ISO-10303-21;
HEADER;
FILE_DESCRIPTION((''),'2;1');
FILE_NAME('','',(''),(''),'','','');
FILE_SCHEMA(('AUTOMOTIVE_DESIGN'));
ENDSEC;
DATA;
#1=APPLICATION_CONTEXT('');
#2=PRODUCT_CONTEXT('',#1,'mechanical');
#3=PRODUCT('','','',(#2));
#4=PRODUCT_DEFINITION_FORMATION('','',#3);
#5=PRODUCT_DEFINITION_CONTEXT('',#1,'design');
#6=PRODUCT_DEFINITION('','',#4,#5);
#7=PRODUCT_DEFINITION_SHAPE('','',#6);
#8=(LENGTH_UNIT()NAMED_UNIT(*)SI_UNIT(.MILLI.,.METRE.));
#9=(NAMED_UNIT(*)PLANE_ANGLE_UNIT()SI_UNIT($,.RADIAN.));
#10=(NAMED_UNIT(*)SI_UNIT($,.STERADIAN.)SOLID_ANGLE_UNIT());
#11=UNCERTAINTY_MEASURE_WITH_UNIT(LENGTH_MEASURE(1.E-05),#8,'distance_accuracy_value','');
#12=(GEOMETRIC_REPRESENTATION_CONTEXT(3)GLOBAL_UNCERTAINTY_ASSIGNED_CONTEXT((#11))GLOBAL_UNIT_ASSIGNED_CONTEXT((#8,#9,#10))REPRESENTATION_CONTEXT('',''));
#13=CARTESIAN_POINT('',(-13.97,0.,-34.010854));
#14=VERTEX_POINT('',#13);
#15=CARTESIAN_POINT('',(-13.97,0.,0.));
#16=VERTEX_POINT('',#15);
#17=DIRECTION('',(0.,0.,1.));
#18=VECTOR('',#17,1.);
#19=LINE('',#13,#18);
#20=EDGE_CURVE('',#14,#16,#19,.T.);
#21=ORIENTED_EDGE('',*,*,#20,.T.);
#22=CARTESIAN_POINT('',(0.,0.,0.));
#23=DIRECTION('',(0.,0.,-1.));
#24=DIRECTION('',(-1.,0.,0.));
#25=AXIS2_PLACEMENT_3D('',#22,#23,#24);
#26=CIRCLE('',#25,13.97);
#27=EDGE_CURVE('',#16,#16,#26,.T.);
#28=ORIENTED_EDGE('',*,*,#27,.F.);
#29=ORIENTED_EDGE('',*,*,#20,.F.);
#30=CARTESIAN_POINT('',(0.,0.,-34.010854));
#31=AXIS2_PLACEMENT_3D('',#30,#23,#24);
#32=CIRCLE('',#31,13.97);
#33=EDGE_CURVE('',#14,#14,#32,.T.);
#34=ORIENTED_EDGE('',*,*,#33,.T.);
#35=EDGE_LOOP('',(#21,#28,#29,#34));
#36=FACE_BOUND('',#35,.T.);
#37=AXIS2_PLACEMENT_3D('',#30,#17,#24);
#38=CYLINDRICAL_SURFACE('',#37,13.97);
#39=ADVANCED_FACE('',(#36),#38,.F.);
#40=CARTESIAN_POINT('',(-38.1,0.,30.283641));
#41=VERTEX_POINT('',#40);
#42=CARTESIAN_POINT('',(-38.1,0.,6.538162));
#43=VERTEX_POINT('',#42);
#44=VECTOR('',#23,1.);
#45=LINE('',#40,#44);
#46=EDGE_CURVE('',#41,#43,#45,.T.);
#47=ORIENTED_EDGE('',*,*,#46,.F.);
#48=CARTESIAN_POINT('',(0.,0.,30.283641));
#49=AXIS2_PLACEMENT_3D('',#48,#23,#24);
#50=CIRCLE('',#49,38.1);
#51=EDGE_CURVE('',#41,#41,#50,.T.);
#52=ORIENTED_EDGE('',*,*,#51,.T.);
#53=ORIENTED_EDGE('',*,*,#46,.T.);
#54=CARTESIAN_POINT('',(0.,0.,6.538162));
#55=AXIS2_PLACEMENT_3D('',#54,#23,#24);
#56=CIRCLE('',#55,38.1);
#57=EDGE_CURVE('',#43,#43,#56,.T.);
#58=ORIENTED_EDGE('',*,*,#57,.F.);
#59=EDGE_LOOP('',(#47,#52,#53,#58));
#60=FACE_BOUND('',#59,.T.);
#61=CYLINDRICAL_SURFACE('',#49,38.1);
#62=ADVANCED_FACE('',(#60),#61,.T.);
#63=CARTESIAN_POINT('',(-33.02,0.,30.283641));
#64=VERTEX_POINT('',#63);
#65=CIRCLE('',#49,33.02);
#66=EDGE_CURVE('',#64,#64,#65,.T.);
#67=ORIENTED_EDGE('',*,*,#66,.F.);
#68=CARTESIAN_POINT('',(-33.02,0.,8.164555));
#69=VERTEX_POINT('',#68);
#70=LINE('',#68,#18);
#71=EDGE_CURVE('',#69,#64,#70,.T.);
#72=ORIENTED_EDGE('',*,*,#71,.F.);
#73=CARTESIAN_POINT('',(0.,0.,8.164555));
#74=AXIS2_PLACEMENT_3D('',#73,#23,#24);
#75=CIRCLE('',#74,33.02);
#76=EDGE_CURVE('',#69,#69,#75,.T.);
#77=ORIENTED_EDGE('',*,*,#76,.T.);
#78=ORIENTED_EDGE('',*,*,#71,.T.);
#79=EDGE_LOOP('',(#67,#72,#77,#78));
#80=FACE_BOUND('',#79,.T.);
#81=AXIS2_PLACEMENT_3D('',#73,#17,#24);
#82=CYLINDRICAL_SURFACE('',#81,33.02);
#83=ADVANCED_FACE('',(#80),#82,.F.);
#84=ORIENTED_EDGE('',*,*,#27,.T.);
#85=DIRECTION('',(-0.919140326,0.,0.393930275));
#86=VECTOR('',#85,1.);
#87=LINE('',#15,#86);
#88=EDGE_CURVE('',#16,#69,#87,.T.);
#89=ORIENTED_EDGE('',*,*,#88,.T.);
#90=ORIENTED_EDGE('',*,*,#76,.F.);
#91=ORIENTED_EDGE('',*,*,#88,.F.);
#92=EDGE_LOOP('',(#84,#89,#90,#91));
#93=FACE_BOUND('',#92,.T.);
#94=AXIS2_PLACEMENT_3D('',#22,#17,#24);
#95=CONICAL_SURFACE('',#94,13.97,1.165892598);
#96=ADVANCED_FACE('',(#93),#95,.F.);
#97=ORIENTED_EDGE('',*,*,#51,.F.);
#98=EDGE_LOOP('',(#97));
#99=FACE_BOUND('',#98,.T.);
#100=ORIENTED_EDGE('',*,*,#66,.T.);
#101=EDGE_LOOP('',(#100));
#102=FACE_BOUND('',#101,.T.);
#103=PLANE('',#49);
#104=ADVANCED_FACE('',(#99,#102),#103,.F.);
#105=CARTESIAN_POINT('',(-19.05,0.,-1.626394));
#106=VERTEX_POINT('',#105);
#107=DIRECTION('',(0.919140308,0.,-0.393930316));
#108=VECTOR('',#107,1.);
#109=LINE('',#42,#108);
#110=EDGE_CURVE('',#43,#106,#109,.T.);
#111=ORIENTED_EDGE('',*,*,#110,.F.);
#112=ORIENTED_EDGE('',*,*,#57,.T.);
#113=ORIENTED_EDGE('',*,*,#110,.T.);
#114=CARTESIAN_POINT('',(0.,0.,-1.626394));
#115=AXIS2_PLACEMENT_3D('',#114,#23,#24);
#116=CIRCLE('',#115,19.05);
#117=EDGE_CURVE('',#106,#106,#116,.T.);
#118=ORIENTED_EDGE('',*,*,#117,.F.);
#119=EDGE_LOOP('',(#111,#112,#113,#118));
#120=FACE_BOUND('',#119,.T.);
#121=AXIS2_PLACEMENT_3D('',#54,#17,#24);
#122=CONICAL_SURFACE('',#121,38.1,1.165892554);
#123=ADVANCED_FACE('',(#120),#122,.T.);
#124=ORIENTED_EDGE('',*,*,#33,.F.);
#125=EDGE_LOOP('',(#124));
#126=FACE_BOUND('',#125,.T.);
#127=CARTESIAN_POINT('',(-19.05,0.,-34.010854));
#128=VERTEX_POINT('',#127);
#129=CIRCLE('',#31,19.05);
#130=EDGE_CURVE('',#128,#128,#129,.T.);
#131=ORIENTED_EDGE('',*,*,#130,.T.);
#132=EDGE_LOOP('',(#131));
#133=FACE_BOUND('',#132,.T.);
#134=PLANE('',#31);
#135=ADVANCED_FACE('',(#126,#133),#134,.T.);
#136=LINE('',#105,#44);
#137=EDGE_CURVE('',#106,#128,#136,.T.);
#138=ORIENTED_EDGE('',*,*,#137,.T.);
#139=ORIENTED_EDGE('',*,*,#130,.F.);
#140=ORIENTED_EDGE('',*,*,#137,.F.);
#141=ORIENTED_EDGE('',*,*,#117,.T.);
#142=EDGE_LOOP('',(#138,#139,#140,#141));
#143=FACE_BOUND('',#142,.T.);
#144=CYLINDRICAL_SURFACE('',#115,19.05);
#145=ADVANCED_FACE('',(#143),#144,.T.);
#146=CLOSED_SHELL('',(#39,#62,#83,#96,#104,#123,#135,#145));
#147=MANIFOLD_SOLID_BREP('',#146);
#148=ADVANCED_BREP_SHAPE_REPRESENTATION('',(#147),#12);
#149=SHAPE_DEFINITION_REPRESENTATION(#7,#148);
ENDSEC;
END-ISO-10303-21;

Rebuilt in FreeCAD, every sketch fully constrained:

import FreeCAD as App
import Part
import Sketcher
from FreeCAD import Vector
Q = App.Units.Quantity

doc = App.newDocument("Part")
body = doc.addObject("PartDesign::Body", "Body")

# Sketch on XZ plane
sketch1 = body.newObject("Sketcher::SketchObject", "Sketch")
sketch1.AttachmentSupport = (doc.getObject("XZ_Plane"), [""])
sketch1.MapMode = "FlatFace"
sketch1.addGeometry([
    Part.LineSegment(Vector(-38.1, 30.283641, 0), Vector(-38.1, 6.538162, 0)),  # 0
    Part.LineSegment(Vector(-38.1, 6.538162, 0), Vector(-19.05, -1.626394, 0)),  # 1
    Part.LineSegment(Vector(-19.05, -1.626394, 0), Vector(-19.05, -34.010854, 0)),  # 2
    Part.LineSegment(Vector(-19.05, -34.010854, 0), Vector(-13.97, -34.010854, 0)),  # 3
    Part.LineSegment(Vector(-13.97, -34.010854, 0), Vector(-13.97, 0, 0)),  # 4
    Part.LineSegment(Vector(-13.97, 0, 0), Vector(-33.02, 8.164555, 0)),  # 5
    Part.LineSegment(Vector(-33.02, 8.164555, 0), Vector(-33.02, 30.283641, 0)),  # 6
    Part.LineSegment(Vector(-33.02, 30.283641, 0), Vector(-38.1, 30.283641, 0)),  # 7
], False)
sketch1.addConstraint([
    Sketcher.Constraint("Coincident", 0, 2, 1, 1),
    Sketcher.Constraint("Coincident", 1, 2, 2, 1),
    Sketcher.Constraint("Coincident", 2, 2, 3, 1),
    Sketcher.Constraint("Coincident", 3, 2, 4, 1),
    Sketcher.Constraint("Coincident", 4, 2, 5, 1),
    Sketcher.Constraint("Coincident", 5, 2, 6, 1),
    Sketcher.Constraint("Coincident", 6, 2, 7, 1),
    Sketcher.Constraint("Coincident", 7, 2, 0, 1),
    Sketcher.Constraint("Vertical", 0),
    Sketcher.Constraint("Vertical", 2),
    Sketcher.Constraint("Horizontal", 3),
    Sketcher.Constraint("Vertical", 4),
    Sketcher.Constraint("Vertical", 6),
    Sketcher.Constraint("Horizontal", 7),
    Sketcher.Constraint("PointOnObject", 4, 2, -1),
    Sketcher.Constraint("Parallel", 1, 5),
    Sketcher.Constraint("Equal", 3, 7),
    Sketcher.Constraint("DistanceX", 3, 1, 3, 2, Q("0.2 in")),
    Sketcher.Constraint("DistanceX", 0, 2, -1, 1, Q("1.5 in")),
    Sketcher.Constraint("DistanceX", 1, 2, -1, 1, Q("0.75 in")),
    Sketcher.Constraint("DistanceY", 0, 2, 0, 1, Q("23.745479 mm")),
    Sketcher.Constraint("DistanceY", 2, 2, 2, 1, Q("32.38446 mm")),
    Sketcher.Constraint("Distance", 1, Q("20.725889 mm")),
    Sketcher.Constraint("DistanceY", 4, 1, 4, 2, Q("34.010854 mm")),
])
revolution = body.newObject("PartDesign::Revolution", "Revolution")
revolution.Profile = sketch1
revolution.ReferenceAxis = (sketch1, ["V_Axis"])
revolution.Angle = 360

doc.recompute()
